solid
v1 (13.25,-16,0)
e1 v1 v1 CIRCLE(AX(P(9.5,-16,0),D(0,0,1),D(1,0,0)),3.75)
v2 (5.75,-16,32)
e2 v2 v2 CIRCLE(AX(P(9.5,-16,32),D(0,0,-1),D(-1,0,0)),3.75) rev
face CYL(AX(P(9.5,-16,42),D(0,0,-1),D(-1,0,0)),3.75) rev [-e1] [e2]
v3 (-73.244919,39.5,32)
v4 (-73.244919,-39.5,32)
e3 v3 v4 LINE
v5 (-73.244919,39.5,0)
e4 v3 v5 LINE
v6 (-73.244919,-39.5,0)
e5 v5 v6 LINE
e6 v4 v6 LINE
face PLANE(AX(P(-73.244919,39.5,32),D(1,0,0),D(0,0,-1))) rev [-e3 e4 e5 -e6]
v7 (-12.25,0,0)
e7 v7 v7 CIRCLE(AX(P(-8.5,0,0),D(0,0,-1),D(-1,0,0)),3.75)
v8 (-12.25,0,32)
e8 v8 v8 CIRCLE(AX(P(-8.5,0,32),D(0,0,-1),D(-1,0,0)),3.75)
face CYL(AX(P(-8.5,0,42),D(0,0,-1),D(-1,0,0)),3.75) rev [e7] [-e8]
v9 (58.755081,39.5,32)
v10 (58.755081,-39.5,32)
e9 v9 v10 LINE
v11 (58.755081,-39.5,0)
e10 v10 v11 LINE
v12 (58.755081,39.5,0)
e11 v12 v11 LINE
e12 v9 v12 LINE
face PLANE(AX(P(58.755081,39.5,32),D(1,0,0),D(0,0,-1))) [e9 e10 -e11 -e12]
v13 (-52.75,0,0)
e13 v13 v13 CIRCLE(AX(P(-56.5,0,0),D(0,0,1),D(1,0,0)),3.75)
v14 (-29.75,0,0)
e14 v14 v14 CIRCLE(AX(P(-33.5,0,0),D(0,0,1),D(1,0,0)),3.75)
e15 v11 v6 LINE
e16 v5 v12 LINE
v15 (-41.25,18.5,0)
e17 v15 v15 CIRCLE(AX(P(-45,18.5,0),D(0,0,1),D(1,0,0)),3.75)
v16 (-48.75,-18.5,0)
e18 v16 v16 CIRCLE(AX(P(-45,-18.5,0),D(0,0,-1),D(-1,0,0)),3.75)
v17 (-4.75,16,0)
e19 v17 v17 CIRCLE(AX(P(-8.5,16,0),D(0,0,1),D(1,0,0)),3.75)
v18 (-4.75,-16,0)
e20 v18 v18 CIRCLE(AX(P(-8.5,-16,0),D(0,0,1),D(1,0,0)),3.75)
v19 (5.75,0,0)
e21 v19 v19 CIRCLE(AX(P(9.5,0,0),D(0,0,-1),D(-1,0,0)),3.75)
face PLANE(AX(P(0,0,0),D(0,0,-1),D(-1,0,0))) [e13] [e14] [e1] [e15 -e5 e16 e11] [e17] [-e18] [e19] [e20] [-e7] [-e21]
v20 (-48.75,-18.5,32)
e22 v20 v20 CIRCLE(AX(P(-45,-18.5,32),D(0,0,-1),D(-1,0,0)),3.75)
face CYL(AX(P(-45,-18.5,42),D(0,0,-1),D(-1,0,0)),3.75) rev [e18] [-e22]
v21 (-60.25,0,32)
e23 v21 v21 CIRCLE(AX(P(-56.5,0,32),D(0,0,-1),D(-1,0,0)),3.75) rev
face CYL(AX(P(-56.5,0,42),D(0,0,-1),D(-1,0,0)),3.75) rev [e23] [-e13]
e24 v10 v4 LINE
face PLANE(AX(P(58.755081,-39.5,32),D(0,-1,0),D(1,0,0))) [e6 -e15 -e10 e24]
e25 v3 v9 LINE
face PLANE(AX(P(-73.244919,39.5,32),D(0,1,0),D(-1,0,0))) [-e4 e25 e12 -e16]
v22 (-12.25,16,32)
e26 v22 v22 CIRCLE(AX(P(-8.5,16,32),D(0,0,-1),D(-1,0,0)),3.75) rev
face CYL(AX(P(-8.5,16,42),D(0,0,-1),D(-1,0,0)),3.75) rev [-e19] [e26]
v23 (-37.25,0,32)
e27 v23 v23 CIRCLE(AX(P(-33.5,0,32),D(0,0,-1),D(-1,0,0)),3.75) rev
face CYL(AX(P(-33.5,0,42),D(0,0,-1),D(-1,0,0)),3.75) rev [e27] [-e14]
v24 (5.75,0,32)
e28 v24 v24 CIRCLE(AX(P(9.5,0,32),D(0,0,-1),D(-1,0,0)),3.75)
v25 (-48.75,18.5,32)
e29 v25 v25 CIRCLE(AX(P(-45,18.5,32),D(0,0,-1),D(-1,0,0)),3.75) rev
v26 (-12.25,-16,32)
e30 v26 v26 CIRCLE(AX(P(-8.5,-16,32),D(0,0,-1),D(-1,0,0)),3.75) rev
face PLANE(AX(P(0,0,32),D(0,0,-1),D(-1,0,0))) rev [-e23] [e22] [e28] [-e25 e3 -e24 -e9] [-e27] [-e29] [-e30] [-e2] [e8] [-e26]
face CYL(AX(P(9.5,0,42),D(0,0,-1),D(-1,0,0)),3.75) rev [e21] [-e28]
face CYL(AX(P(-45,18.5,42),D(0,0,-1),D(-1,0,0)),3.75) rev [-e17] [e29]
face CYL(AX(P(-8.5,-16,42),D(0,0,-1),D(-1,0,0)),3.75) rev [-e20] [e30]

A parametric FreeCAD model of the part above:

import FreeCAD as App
import Part
import Sketcher
from FreeCAD import Vector

doc = App.newDocument("Part")
body = doc.addObject("PartDesign::Body", "Body")

# Sketch on XY plane
sketch1 = body.newObject("Sketcher::SketchObject", "Sketch")
sketch1.AttachmentSupport = (doc.getObject("XY_Plane"), [""])
sketch1.MapMode = "FlatFace"
sketch1.addGeometry([
    Part.LineSegment(Vector(-73, 40, 0), Vector(-73, -40, 0)),
    Part.LineSegment(Vector(-73, -40, 0), Vector(59, -40, 0)),
    Part.LineSegment(Vector(59, -40, 0), Vector(59, 40, 0)),
    Part.LineSegment(Vector(59, 40, 0), Vector(-73, 40, 0)),
], False)
sketch1.addConstraint([
    Sketcher.Constraint("Coincident", 0, 2, 1, 1),
    Sketcher.Constraint("Coincident", 1, 2, 2, 1),
    Sketcher.Constraint("Coincident", 2, 2, 3, 1),
    Sketcher.Constraint("Coincident", 3, 2, 0, 1),
    Sketcher.Constraint("Vertical", 0),
    Sketcher.Constraint("Horizontal", 1),
    Sketcher.Constraint("Vertical", 2),
    Sketcher.Constraint("Horizontal", 3),
    Sketcher.Constraint("DistanceX", 1, 1, 1, 2, 132.0),
    Sketcher.Constraint("DistanceY", 0, 2, 0, 1, 79.0),
    Sketcher.Constraint("DistanceY", 0, 2, -1, 1, 39.5),
    Sketcher.Constraint("DistanceX", 0, 2, -1, 1, 73.244919),
])
pad1 = body.newObject("PartDesign::Pad", "Pad")
pad1.Profile = sketch1
pad1.Length = 32

# Sketch on XY plane
sketch2 = body.newObject("Sketcher::SketchObject", "Sketch001")
sketch2.AttachmentSupport = (doc.getObject("XY_Plane"), [""])
sketch2.MapMode = "FlatFace"
sketch2.addGeometry([
    Part.Circle(Vector(-45, 18.5, 0), Vector(0, 0, 1), 3.8),  # 0
    Part.Circle(Vector(-45, -18.5, 0), Vector(0, 0, 1), 3.8),  # 1
    Part.Circle(Vector(-56.5, 0, 0), Vector(0, 0, 1), 3.8),  # 2
    Part.Circle(Vector(-33.5, 0, 0), Vector(0, 0, 1), 3.8),  # 3
    Part.Circle(Vector(-8.5, 0, 0), Vector(0, 0, 1), 3.8),  # 4
    Part.Circle(Vector(-8.5, -16, 0), Vector(0, 0, 1), 3.8),  # 5
    Part.Circle(Vector(-8.5, 16, 0), Vector(0, 0, 1), 3.8),  # 6
    Part.Circle(Vector(9.5, -16, 0), Vector(0, 0, 1), 3.8),  # 7
    Part.Circle(Vector(9.5, 0, 0), Vector(0, 0, 1), 3.8),  # 8
], False)
sketch2.addConstraint([
    Sketcher.Constraint("Equal", 0, 1),
    Sketcher.Constraint("Equal", 1, 2),
    Sketcher.Constraint("Equal", 2, 3),
    Sketcher.Constraint("Equal", 3, 4),
    Sketcher.Constraint("Equal", 4, 5),
    Sketcher.Constraint("Equal", 5, 6),
    Sketcher.Constraint("Equal", 6, 7),
    Sketcher.Constraint("Equal", 7, 8),
    Sketcher.Constraint("Symmetric", 0, 3, 1, 3, -1),
    Sketcher.Constraint("Symmetric", 5, 3, 6, 3, -1),
    Sketcher.Constraint("PointOnObject", 2, 3, -1),
    Sketcher.Constraint("PointOnObject", 3, 3, -1),
    Sketcher.Constraint("PointOnObject", 4, 3, -1),
    Sketcher.Constraint("PointOnObject", 8, 3, -1),
    Sketcher.Constraint("Horizontal", 5, 3, 7, 3),
    Sketcher.Constraint("Vertical", 4, 3, 5, 3),
    Sketcher.Constraint("Vertical", 7, 3, 8, 3),
    Sketcher.Constraint("Diameter", 0, 7.5),
    Sketcher.Constraint("DistanceX", 0, 3, -1, 1, 45.0),
    Sketcher.Constraint("DistanceY", 5, 3, -1, 1, 16.0),
    Sketcher.Constraint("DistanceY", 1, 3, 0, 3, 37.0),
    Sketcher.Constraint("DistanceX", 2, 3, 3, 3, 23.0),
    Sketcher.Constraint("DistanceX", 3, 3, 4, 3, 25.0),
    Sketcher.Constraint("DistanceX", 5, 3, 7, 3, 18.0),
    Sketcher.Constraint("DistanceX", 2, 3, -1, 1, 56.5),
])
pocket1 = body.newObject("PartDesign::Pocket", "Pocket")
pocket1.Profile = sketch2
pocket1.Length = 42
pocket1.Reversed = True

doc.recompute()
